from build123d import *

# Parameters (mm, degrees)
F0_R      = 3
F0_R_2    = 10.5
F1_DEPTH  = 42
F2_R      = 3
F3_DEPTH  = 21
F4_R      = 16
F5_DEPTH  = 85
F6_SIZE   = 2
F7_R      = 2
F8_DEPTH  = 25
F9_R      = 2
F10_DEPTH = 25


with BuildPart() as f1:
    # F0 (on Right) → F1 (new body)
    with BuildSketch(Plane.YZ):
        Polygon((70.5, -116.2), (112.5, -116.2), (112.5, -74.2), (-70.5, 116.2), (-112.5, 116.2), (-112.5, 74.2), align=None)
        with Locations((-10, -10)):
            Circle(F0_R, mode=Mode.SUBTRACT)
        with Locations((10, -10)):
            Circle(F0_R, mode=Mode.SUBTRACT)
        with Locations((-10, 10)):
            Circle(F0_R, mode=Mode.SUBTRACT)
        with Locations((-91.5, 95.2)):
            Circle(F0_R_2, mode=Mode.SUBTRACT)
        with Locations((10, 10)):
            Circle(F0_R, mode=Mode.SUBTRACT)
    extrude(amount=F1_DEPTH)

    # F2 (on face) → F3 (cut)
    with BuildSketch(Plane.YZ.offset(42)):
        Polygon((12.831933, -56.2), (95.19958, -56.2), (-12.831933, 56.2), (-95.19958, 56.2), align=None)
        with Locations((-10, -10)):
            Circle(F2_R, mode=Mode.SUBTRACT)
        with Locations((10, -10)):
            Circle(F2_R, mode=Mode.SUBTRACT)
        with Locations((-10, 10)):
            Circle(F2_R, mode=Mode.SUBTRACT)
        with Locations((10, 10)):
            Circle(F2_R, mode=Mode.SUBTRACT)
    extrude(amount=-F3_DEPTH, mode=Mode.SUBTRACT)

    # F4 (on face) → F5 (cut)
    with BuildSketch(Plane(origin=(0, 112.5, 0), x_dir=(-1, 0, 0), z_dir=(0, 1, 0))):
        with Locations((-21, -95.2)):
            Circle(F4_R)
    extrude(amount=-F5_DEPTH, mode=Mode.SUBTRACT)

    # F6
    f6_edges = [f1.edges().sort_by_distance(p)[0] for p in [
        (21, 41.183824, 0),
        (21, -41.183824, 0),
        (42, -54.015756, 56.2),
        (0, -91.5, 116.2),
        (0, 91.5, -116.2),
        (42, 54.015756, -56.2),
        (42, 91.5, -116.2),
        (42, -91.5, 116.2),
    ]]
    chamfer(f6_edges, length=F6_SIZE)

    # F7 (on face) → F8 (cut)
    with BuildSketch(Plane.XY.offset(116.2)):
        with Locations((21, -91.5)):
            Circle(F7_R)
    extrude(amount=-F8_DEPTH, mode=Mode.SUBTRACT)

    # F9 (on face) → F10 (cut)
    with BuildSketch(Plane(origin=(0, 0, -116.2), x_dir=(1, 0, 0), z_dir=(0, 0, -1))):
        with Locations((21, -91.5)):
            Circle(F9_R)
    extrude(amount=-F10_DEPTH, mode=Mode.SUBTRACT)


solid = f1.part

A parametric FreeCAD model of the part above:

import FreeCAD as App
import Part
import Sketcher
Q = App.Units.Quantity


def edges_at(feature, points):
    """Names of the edges that pass closest to the given points."""
    edges = feature.Shape.Edges
    near = lambda p: min(range(len(edges)), key=lambda i: edges[i].distToShape(Part.Vertex(*p))[0])
    return sorted({f"Edge{near(p) + 1}" for p in points})

doc = App.newDocument("Part")
body = doc.addObject("PartDesign::Body", "Body")

# Sketch on YZ plane
sketch1 = body.newObject("Sketcher::SketchObject", "Sketch")
sketch1.AttachmentSupport = (doc.getObject("YZ_Plane"), [""])
sketch1.MapMode = "FlatFace"
sketch1.addGeometry(Part.LineSegment(App.Vector(70.5, -116.2, 0), App.Vector(112.5, -116.2, 0)), False)
sketch1.addGeometry(Part.LineSegment(App.Vector(112.5, -116.2, 0), App.Vector(112.5, -74.2, 0)), False)
sketch1.addGeometry(Part.LineSegment(App.Vector(112.5, -74.2, 0), App.Vector(-70.5, 116.2, 0)), False)
sketch1.addGeometry(Part.LineSegment(App.Vector(-70.5, 116.2, 0), App.Vector(-112.5, 116.2, 0)), False)
sketch1.addGeometry(Part.LineSegment(App.Vector(-112.5, 116.2, 0), App.Vector(-112.5, 74.2, 0)), False)
sketch1.addGeometry(Part.LineSegment(App.Vector(-112.5, 74.2, 0), App.Vector(70.5, -116.2, 0)), False)
sketch1.addGeometry(Part.Circle(App.Vector(-10, -10, 0), App.Vector(0, 0, 1), 3), False)
sketch1.addGeometry(Part.Circle(App.Vector(10, -10, 0), App.Vector(0, 0, 1), 3), False)
sketch1.addGeometry(Part.Circle(App.Vector(-10, 10, 0), App.Vector(0, 0, 1), 3), False)
sketch1.addGeometry(Part.Circle(App.Vector(10, 10, 0), App.Vector(0, 0, 1), 3), False)
sketch1.addGeometry(Part.Circle(App.Vector(-91.5, 95.2, 0), App.Vector(0, 0, 1), 10.5), False)
sketch1.addConstraint(Sketcher.Constraint("Coincident", 0, 2, 1, 1))
sketch1.addConstraint(Sketcher.Constraint("Coincident", 1, 2, 2, 1))
sketch1.addConstraint(Sketcher.Constraint("Coincident", 2, 2, 3, 1))
sketch1.addConstraint(Sketcher.Constraint("Coincident", 3, 2, 4, 1))
sketch1.addConstraint(Sketcher.Constraint("Coincident", 4, 2, 5, 1))
sketch1.addConstraint(Sketcher.Constraint("Coincident", 5, 2, 0, 1))
sketch1.addConstraint(Sketcher.Constraint("Horizontal", 0))
sketch1.addConstraint(Sketcher.Constraint("Vertical", 1))
sketch1.addConstraint(Sketcher.Constraint("Horizontal", 3))
sketch1.addConstraint(Sketcher.Constraint("Vertical", 4))
sketch1.addConstraint(Sketcher.Constraint("Equal", 6, 7))
sketch1.addConstraint(Sketcher.Constraint("Equal", 7, 8))
sketch1.addConstraint(Sketcher.Constraint("Equal", 8, 9))
sketch1.addConstraint(Sketcher.Constraint("Symmetric", 7, 3, 8, 3, -1, 1))
sketch1.addConstraint(Sketcher.Constraint("Symmetric", 6, 3, 9, 3, -1, 1))
sketch1.addConstraint(Sketcher.Constraint("Symmetric", 0, 2, 3, 2, -1, 1))
sketch1.addConstraint(Sketcher.Constraint("Symmetric", 6, 3, 7, 3, -2))
sketch1.addConstraint(Sketcher.Constraint("Parallel", 2, 5))
sketch1.addConstraint(Sketcher.Constraint("Equal", 0, 3))
sketch1.addConstraint(Sketcher.Constraint("Equal", 3, 1))
sketch1.addConstraint(Sketcher.Constraint("Diameter", 6, Q("6 mm")))
sketch1.addConstraint(Sketcher.Constraint("Diameter", 10, Q("21 mm")))
sketch1.addConstraint(Sketcher.Constraint("DistanceX", 0, 1, 0, 2, Q("42 mm")))
sketch1.addConstraint(Sketcher.Constraint("DistanceX", 6, 3, -1, 1, Q("10 mm")))
sketch1.addConstraint(Sketcher.Constraint("DistanceY", 6, 3, -1, 1, Q("10 mm")))
sketch1.addConstraint(Sketcher.Constraint("DistanceX", 10, 3, 0, 2, Q("204 mm")))
sketch1.addConstraint(Sketcher.Constraint("DistanceX", 10, 3, 2, 2, Q("21 mm")))
sketch1.addConstraint(Sketcher.Constraint("DistanceY", 10, 3, 2, 2, Q("21 mm")))
sketch1.addConstraint(Sketcher.Constraint("DistanceY", -1, 1, 10, 3, Q("95.2 mm")))
pad1 = body.newObject("PartDesign::Pad", "Pad")
pad1.Profile = sketch1
pad1.Length = 42

# Sketch on YZ plane
sketch2 = body.newObject("Sketcher::SketchObject", "Sketch001")
sketch2.AttachmentSupport = (doc.getObject("YZ_Plane"), [""])
sketch2.MapMode = "FlatFace"
sketch2.AttachmentOffset = App.Placement(App.Vector(0, 0, 42), App.Rotation())
sketch2.addGeometry(Part.LineSegment(App.Vector(12.8, -56.2, 0), App.Vector(95.2, -56.2, 0)), False)
sketch2.addGeometry(Part.LineSegment(App.Vector(95.2, -56.2, 0), App.Vector(-12.8, 56.2, 0)), False)
sketch2.addGeometry(Part.LineSegment(App.Vector(-12.8, 56.2, 0), App.Vector(-95.2, 56.2, 0)), False)
sketch2.addGeometry(Part.LineSegment(App.Vector(-95.2, 56.2, 0), App.Vector(12.8, -56.2, 0)), False)
sketch2.addGeometry(Part.Circle(App.Vector(-10, -10, 0), App.Vector(0, 0, 1), 3), False)
sketch2.addGeometry(Part.Circle(App.Vector(10, -10, 0), App.Vector(0, 0, 1), 3), False)
sketch2.addGeometry(Part.Circle(App.Vector(-10, 10, 0), App.Vector(0, 0, 1), 3), False)
sketch2.addGeometry(Part.Circle(App.Vector(10, 10, 0), App.Vector(0, 0, 1), 3), False)
sketch2.addConstraint(Sketcher.Constraint("Coincident", 0, 2, 1, 1))
sketch2.addConstraint(Sketcher.Constraint("Coincident", 1, 2, 2, 1))
sketch2.addConstraint(Sketcher.Constraint("Coincident", 2, 2, 3, 1))
sketch2.addConstraint(Sketcher.Constraint("Coincident", 3, 2, 0, 1))
sketch2.addConstraint(Sketcher.Constraint("Horizontal", 0))
sketch2.addConstraint(Sketcher.Constraint("Horizontal", 2))
sketch2.addConstraint(Sketcher.Constraint("Equal", 4, 5))
sketch2.addConstraint(Sketcher.Constraint("Equal", 5, 6))
sketch2.addConstraint(Sketcher.Constraint("Equal", 6, 7))
sketch2.addConstraint(Sketcher.Constraint("Symmetric", 5, 3, 6, 3, -1, 1))
sketch2.addConstraint(Sketcher.Constraint("Symmetric", 4, 3, 7, 3, -1, 1))
sketch2.addConstraint(Sketcher.Constraint("Symmetric", 0, 2, 2, 2, -1, 1))
sketch2.addConstraint(Sketcher.Constraint("Symmetric", 4, 3, 5, 3, -2))
sketch2.addConstraint(Sketcher.Constraint("Parallel", 1, 3))
sketch2.addConstraint(Sketcher.Constraint("Diameter", 4, Q("6 mm")))
sketch2.addConstraint(Sketcher.Constraint("DistanceX", 4, 3, -1, 1, Q("10 mm")))
sketch2.addConstraint(Sketcher.Constraint("DistanceY", 4, 3, -1, 1, Q("10 mm")))
sketch2.addConstraint(Sketcher.Constraint("DistanceY", 0, 2, -1, 1, Q("56.2 mm")))
sketch2.addConstraint(Sketcher.Constraint("DistanceX", 0, 1, 0, 2, Q("82.367647 mm")))
sketch2.addConstraint(Sketcher.Constraint("DistanceX", -1, 1, 0, 2, Q("95.19958 mm")))
pocket1 = body.newObject("PartDesign::Pocket", "Pocket")
pocket1.Profile = sketch2
pocket1.Length = 21

# Sketch on XZ plane
sketch3 = body.newObject("Sketcher::SketchObject", "Sketch002")
sketch3.AttachmentSupport = (doc.getObject("XZ_Plane"), [""])
sketch3.MapMode = "FlatFace"
sketch3.AttachmentOffset = App.Placement(App.Vector(0, 0, -112.5), App.Rotation())
sketch3.addGeometry(Part.Circle(App.Vector(21, -95, 0), App.Vector(0, 0, 1), 16), False)
sketch3.addConstraint(Sketcher.Constraint("Diameter", 0, Q("32 mm")))
sketch3.addConstraint(Sketcher.Constraint("DistanceX", -1, 1, 0, 3, Q("21 mm")))
sketch3.addConstraint(Sketcher.Constraint("DistanceY", 0, 3, -1, 1, Q("95.2 mm")))
pocket2 = body.newObject("PartDesign::Pocket", "Pocket001")
pocket2.Profile = sketch3
pocket2.Length = 85
pocket2.Reversed = True
doc.recompute()

chamfer = body.newObject("PartDesign::Chamfer", "Chamfer")
chamfer.Base = (pocket2, edges_at(pocket2, [
    (21, 41.184, 0),
    (21, -41.184, 0),
    (42, -54.016, 56.2),
    (0, -91.5, 116.2),
    (0, 91.5, -116.2),
    (42, 54.016, -56.2),
    (42, 91.5, -116.2),
    (42, -91.5, 116.2),
]))
chamfer.Size = 2

# Sketch on XY plane
sketch4 = body.newObject("Sketcher::SketchObject", "Sketch003")
sketch4.AttachmentSupport = (doc.getObject("XY_Plane"), [""])
sketch4.MapMode = "FlatFace"
sketch4.AttachmentOffset = App.Placement(App.Vector(0, 0, 116.2), App.Rotation())
sketch4.addGeometry(Part.Circle(App.Vector(21, -91.5, 0), App.Vector(0, 0, 1), 2), False)
sketch4.addConstraint(Sketcher.Constraint("Diameter", 0, Q("4 mm")))
sketch4.addConstraint(Sketcher.Constraint("DistanceX", -1, 1, 0, 3, Q("21 mm")))
sketch4.addConstraint(Sketcher.Constraint("DistanceY", 0, 3, -1, 1, Q("91.5 mm")))
pocket3 = body.newObject("PartDesign::Pocket", "Pocket002")
pocket3.Profile = sketch4
pocket3.Length = 25

# Sketch on XY plane
sketch5 = body.newObject("Sketcher::SketchObject", "Sketch004")
sketch5.AttachmentSupport = (doc.getObject("XY_Plane"), [""])
sketch5.MapMode = "FlatFace"
sketch5.AttachmentOffset = App.Placement(App.Vector(0, 0, -116.2), App.Rotation())
sketch5.addGeometry(Part.Circle(App.Vector(21, 91.5, 0), App.Vector(0, 0, 1), 2), False)
sketch5.addConstraint(Sketcher.Constraint("Diameter", 0, Q("4 mm")))
sketch5.addConstraint(Sketcher.Constraint("DistanceX", -1, 1, 0, 3, Q("21 mm")))
sketch5.addConstraint(Sketcher.Constraint("DistanceY", -1, 1, 0, 3, Q("91.5 mm")))
pocket4 = body.newObject("PartDesign::Pocket", "Pocket003")
pocket4.Profile = sketch5
pocket4.Length = 25
pocket4.Reversed = True

doc.recompute()
